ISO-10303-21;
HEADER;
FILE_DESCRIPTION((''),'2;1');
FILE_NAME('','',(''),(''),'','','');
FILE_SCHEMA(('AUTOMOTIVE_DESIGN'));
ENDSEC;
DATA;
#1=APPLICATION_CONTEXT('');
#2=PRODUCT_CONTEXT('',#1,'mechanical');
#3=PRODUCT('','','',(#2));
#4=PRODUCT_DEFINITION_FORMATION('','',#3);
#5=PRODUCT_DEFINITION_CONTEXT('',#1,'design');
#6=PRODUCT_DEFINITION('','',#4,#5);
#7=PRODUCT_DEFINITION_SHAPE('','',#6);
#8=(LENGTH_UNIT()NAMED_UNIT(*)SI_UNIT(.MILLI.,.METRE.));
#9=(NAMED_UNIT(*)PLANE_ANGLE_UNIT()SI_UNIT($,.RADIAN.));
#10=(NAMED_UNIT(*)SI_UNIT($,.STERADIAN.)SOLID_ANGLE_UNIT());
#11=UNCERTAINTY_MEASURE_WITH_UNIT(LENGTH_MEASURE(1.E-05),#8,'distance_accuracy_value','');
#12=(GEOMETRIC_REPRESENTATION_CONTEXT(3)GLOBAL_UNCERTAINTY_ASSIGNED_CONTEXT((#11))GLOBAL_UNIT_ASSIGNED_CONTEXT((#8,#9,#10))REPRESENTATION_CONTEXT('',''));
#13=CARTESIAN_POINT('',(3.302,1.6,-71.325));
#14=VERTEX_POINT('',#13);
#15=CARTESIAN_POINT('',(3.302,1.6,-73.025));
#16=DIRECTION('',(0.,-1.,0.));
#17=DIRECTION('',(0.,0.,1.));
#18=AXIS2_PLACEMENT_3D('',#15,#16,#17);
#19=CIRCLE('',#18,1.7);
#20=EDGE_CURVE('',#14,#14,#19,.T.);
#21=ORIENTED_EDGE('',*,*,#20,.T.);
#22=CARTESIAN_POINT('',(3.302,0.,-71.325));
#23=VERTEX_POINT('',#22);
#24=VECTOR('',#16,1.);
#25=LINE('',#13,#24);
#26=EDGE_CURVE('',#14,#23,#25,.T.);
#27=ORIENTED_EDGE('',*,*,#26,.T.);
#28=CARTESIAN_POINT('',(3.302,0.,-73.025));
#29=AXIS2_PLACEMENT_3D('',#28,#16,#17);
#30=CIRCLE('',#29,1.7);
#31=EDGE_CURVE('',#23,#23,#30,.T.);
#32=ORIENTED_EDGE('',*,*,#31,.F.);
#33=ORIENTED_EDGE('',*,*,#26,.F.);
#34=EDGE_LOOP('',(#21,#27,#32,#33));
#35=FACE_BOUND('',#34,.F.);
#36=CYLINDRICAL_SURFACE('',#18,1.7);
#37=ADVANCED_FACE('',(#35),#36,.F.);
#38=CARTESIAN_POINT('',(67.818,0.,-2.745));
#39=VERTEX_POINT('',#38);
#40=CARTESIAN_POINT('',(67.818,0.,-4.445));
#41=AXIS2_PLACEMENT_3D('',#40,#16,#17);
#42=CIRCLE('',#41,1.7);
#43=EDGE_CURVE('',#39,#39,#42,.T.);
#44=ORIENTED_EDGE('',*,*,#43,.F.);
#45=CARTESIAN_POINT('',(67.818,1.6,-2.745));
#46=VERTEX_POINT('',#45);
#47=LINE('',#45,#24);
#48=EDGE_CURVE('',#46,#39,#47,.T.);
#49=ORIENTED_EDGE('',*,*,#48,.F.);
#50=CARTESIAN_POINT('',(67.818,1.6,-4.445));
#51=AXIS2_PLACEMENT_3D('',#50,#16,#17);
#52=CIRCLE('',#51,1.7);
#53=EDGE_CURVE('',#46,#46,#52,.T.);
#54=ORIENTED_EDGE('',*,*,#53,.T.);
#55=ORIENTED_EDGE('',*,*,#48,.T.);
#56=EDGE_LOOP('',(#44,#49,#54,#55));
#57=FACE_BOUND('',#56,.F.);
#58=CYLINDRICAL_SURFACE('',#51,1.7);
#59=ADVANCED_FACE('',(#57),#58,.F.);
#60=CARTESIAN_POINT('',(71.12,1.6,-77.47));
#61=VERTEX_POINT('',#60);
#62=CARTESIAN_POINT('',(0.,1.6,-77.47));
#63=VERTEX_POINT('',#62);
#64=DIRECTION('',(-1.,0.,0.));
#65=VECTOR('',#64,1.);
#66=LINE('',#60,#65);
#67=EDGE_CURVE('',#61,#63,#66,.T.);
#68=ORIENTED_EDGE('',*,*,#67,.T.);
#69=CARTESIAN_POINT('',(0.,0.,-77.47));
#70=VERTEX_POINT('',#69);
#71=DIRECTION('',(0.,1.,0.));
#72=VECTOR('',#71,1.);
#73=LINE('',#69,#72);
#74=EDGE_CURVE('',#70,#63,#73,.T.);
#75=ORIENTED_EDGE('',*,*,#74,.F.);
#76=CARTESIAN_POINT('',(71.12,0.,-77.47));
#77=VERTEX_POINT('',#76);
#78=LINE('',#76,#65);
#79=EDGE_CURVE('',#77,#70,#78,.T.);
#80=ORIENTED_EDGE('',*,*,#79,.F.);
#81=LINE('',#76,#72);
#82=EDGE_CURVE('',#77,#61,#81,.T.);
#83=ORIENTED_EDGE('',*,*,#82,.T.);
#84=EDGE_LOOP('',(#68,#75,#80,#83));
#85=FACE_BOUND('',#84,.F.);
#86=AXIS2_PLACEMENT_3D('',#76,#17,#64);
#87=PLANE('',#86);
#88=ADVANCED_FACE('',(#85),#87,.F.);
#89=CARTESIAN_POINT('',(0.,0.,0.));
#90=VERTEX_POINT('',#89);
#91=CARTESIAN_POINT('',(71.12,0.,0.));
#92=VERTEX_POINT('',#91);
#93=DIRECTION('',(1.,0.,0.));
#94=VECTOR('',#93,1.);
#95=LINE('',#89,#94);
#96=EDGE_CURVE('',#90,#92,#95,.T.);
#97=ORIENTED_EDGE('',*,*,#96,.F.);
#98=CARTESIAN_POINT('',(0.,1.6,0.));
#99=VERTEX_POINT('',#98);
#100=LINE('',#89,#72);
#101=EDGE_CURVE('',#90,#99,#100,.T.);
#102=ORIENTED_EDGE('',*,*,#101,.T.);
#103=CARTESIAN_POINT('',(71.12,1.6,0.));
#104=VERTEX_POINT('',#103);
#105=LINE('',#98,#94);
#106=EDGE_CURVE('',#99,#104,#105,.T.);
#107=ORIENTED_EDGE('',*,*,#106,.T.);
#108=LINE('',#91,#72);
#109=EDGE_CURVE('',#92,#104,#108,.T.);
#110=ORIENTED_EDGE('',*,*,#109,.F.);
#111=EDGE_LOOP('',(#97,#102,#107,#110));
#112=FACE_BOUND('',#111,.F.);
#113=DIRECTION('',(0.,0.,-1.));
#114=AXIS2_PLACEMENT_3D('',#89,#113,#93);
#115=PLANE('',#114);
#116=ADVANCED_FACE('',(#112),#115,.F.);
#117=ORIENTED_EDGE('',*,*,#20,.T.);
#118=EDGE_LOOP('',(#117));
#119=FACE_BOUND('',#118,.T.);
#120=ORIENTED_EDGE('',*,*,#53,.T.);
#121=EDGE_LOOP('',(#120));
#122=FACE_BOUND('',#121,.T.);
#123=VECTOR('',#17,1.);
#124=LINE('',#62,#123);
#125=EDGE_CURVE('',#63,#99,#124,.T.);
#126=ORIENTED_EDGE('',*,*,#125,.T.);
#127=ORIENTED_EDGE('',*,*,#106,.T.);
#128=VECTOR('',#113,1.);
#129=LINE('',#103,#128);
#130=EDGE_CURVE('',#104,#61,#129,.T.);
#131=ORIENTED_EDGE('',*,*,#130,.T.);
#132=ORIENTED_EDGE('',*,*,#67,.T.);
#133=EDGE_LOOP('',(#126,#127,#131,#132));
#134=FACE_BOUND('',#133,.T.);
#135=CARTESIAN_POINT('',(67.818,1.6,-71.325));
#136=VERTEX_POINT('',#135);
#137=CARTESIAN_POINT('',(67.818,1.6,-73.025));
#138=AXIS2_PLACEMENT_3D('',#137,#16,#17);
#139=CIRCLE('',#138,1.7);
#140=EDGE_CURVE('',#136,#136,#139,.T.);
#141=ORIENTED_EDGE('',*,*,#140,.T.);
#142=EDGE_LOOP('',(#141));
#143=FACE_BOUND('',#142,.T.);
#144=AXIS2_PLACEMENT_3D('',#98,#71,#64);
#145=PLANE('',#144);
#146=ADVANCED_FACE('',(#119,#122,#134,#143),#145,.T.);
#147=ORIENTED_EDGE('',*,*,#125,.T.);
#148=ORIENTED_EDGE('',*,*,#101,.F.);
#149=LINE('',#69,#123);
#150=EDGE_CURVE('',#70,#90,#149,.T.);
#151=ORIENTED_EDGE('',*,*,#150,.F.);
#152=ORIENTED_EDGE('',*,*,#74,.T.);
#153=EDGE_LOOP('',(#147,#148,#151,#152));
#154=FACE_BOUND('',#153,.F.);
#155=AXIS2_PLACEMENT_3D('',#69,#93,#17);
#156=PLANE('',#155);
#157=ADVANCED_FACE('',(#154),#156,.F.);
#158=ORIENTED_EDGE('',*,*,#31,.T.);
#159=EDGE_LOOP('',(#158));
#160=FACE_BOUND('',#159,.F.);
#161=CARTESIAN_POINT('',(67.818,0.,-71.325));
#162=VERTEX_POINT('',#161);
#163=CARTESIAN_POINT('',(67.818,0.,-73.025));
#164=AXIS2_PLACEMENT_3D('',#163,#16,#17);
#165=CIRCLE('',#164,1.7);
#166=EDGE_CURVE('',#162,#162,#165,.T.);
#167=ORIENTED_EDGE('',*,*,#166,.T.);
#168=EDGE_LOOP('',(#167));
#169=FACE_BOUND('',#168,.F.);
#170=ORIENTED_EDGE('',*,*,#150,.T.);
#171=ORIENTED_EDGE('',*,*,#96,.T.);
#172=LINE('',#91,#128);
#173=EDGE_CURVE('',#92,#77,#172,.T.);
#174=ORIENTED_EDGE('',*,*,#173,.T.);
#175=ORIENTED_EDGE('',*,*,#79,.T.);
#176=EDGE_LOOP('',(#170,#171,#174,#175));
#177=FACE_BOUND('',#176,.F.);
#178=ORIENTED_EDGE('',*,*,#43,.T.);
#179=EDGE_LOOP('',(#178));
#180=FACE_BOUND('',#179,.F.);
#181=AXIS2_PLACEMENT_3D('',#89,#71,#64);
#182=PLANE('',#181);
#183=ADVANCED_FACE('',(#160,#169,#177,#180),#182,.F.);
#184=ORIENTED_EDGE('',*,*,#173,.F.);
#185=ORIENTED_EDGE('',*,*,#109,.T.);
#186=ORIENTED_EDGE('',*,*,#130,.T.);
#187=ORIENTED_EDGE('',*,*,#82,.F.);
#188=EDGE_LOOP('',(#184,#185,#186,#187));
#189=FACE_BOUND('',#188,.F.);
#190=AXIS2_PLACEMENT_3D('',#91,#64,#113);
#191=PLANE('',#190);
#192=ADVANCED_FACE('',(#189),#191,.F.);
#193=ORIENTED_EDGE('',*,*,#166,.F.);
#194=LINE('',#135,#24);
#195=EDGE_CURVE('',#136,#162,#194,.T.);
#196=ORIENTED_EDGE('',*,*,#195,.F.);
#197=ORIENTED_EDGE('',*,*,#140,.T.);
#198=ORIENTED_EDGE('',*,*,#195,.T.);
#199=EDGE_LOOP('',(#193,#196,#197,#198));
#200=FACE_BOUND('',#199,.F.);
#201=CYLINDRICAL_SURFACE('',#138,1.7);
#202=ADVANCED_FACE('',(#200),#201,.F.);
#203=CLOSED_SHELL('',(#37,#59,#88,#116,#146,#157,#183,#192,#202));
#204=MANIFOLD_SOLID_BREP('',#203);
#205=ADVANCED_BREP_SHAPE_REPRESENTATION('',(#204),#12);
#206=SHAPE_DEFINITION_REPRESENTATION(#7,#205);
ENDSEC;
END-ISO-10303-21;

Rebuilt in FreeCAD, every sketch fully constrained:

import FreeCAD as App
import Part
import Sketcher
Q = App.Units.Quantity


def add_polygon(sketch, points):
    """Adds a closed chain of lines whose ends are joined by coincident constraints."""
    first, n = sketch.GeometryCount, len(points)
    for a, b in zip(points, points[1:] + points[:1]):
        sketch.addGeometry(Part.LineSegment(App.Vector(*a, 0), App.Vector(*b, 0)), False)
    for i in range(n):
        sketch.addConstraint(Sketcher.Constraint("Coincident", first + i, 2, first + (i + 1) % n, 1))

doc = App.newDocument("Part")
body = doc.addObject("PartDesign::Body", "Body")

# Sketch on XZ plane
sketch1 = body.newObject("Sketcher::SketchObject", "Sketch")
sketch1.AttachmentSupport = (doc.getObject("XZ_Plane"), [""])
sketch1.MapMode = "FlatFace"
add_polygon(sketch1, [(0, -77), (0, 0), (71, 0), (71, -77)])  # lines 0-3
sketch1.addConstraint([
    Sketcher.Constraint("Vertical", 0),
    Sketcher.Constraint("Horizontal", 1),
    Sketcher.Constraint("Vertical", 2),
    Sketcher.Constraint("Horizontal", 3),
    Sketcher.Constraint("Coincident", 0, 2, -1, 1),
    Sketcher.Constraint("DistanceX", 1, 1, 1, 2, Q("2.8 in")),
    Sketcher.Constraint("DistanceY", 0, 1, 0, 2, Q("3.05 in")),
])
pad1 = body.newObject("PartDesign::Pad", "Pad")
pad1.Profile = sketch1
pad1.Length = Q("0.0629921 in")
pad1.Reversed = True

# Sketch on XZ plane
sketch2 = body.newObject("Sketcher::SketchObject", "Sketch001")
sketch2.AttachmentSupport = (doc.getObject("XZ_Plane"), [""])
sketch2.MapMode = "FlatFace"
sketch2.AttachmentOffset = App.Placement(App.Vector(0, 0, -0.0629921 * 25.4), App.Rotation())
sketch2.addGeometry([
    Part.Circle(App.Vector(3.3, -73, 0), App.Vector(0, 0, 1), 1.7),
    Part.Circle(App.Vector(67.8, -4.4, 0), App.Vector(0, 0, 1), 1.7),
    Part.Circle(App.Vector(67.8, -73, 0), App.Vector(0, 0, 1), 1.7),
], False)
sketch2.addConstraint([
    Sketcher.Constraint("Equal", 0, 1),
    Sketcher.Constraint("Equal", 1, 2),
    Sketcher.Constraint("Horizontal", 0, 3, 2, 3),
    Sketcher.Constraint("Vertical", 1, 3, 2, 3),
    Sketcher.Constraint("DistanceY", 0, 3, 1, 3, Q("2.7 in")),
    Sketcher.Constraint("Diameter", 0, Q("3.4 mm")),
    Sketcher.Constraint("DistanceX", -1, 1, 0, 3, Q("0.13 in")),
    Sketcher.Constraint("DistanceX", -1, 1, 1, 3, Q("2.67 in")),
    Sketcher.Constraint("DistanceY", 0, 3, -1, 1, Q("2.875 in")),
])
doc.recompute()
hole = body.newObject("PartDesign::Hole", "Hole")
hole.Profile = sketch2
hole.ThreadType = "None"
hole.Diameter = 3.4
hole.DepthType = "ThroughAll"
hole.Reversed = True

doc.recompute()
